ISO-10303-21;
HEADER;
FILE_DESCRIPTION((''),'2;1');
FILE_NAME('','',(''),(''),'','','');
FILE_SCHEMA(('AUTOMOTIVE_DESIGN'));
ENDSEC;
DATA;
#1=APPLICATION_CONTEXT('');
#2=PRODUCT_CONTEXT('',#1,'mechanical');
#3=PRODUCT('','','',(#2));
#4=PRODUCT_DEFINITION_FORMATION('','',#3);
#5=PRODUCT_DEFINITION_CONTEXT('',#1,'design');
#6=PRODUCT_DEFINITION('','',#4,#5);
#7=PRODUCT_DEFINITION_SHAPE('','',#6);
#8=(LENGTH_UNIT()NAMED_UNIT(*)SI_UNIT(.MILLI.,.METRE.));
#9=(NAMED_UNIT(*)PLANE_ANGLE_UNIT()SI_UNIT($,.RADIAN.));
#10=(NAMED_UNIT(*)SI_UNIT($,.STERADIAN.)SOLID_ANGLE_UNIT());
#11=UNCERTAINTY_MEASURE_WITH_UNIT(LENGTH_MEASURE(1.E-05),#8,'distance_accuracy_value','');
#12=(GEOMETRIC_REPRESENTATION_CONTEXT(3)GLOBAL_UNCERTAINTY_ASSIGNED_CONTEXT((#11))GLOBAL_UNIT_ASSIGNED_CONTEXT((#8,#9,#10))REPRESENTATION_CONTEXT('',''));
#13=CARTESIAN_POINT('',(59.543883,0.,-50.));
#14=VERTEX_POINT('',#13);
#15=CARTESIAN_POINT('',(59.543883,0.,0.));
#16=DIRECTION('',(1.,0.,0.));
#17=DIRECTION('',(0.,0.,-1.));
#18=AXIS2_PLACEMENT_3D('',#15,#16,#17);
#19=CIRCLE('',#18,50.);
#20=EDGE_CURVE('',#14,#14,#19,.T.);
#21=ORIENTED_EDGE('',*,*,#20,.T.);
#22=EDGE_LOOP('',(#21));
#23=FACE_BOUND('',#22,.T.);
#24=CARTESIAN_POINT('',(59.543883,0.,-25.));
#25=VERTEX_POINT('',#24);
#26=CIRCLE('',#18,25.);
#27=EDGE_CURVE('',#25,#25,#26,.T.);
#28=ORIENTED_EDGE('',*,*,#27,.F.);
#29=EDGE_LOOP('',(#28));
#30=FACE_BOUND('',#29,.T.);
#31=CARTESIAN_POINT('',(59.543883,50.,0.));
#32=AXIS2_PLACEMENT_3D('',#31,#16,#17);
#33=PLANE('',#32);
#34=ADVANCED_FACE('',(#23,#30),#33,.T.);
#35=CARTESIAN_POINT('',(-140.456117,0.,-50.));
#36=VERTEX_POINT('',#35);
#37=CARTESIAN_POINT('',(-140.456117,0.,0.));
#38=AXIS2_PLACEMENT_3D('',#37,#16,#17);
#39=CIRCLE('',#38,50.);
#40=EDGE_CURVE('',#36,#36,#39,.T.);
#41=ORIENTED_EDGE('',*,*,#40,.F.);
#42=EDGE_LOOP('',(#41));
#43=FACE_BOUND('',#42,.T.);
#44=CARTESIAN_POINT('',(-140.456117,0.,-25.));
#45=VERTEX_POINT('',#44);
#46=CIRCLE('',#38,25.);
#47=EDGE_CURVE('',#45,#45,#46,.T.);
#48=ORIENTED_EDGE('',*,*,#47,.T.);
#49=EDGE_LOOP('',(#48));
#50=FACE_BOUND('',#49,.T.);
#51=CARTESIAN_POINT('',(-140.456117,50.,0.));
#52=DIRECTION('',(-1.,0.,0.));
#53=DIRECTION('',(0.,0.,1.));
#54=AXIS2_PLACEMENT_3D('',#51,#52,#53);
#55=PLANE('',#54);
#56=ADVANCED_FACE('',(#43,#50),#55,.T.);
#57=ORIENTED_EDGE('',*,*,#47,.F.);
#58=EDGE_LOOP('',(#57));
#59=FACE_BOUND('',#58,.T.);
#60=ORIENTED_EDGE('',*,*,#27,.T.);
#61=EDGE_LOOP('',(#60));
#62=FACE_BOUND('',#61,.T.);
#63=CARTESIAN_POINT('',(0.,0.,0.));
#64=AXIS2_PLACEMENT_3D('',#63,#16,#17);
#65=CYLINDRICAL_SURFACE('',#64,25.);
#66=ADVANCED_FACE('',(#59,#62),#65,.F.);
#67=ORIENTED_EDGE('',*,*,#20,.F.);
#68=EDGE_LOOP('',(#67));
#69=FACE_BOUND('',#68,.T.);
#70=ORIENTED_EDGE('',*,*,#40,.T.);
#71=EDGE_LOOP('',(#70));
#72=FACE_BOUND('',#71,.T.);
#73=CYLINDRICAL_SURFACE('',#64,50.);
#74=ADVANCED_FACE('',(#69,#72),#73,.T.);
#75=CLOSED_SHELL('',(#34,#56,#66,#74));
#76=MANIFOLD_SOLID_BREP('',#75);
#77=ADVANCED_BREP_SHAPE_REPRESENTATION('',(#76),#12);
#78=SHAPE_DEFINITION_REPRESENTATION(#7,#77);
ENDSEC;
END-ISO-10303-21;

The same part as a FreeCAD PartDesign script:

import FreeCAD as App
import Part
import Sketcher

V = App.Vector

doc = App.newDocument("Part")
body = doc.addObject("PartDesign::Body", "Body")

# Sketch on XY plane
sketch1 = doc.addObject("Sketcher::SketchObject", "Sketch")
body.addObject(sketch1)
sketch1.AttachmentSupport = (doc.XY_Plane, [""])
sketch1.MapMode = "FlatFace"
sketch1.addGeometry([
    Part.LineSegment(V(-140, 50, 0), V(-140, 25, 0)),
    Part.LineSegment(V(-140, 25, 0), V(60, 25, 0)),
    Part.LineSegment(V(60, 25, 0), V(60, 50, 0)),
    Part.LineSegment(V(60, 50, 0), V(-140, 50, 0)),
], False)
sketch1.addConstraint([
    Sketcher.Constraint("Coincident", 0, 2, 1, 1),
    Sketcher.Constraint("Coincident", 1, 2, 2, 1),
    Sketcher.Constraint("Coincident", 2, 2, 3, 1),
    Sketcher.Constraint("Coincident", 3, 2, 0, 1),
    Sketcher.Constraint("Vertical", 0),
    Sketcher.Constraint("Horizontal", 1),
    Sketcher.Constraint("Vertical", 2),
    Sketcher.Constraint("Horizontal", 3),
    Sketcher.Constraint("DistanceX", 1, 1, 1, 2, 200.0),
    Sketcher.Constraint("DistanceY", 0, 2, 0, 1, 25.0),
    Sketcher.Constraint("DistanceY", -1, 1, 0, 2, 25.0),
    Sketcher.Constraint("DistanceX", 0, 2, -1, 1, 140.456117),
])
revolution = doc.addObject("PartDesign::Revolution", "Revolution")
body.addObject(revolution)
revolution.Profile = sketch1
revolution.ReferenceAxis = (sketch1, ["H_Axis"])
revolution.Angle = 360

doc.recompute()
